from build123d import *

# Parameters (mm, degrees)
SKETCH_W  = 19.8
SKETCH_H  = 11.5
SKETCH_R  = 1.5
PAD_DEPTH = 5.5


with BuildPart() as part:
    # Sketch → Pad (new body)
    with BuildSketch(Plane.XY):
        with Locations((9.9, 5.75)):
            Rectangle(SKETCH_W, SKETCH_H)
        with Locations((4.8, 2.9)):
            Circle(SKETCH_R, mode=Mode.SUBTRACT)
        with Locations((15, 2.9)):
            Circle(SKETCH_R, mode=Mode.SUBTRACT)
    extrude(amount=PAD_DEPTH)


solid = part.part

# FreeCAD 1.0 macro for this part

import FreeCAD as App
import Part
import Sketcher
from FreeCAD import Vector


def add_polygon(sketch, points):
    """Adds a closed chain of lines whose ends are joined by coincident constraints."""
    first, n = sketch.GeometryCount, len(points)
    for a, b in zip(points, points[1:] + points[:1]):
        sketch.addGeometry(Part.LineSegment(App.Vector(*a, 0), App.Vector(*b, 0)), False)
    for i in range(n):
        sketch.addConstraint(Sketcher.Constraint("Coincident", first + i, 2, first + (i + 1) % n, 1))

doc = App.newDocument("Part")
body = doc.addObject("PartDesign::Body", "Body")

sketch1 = doc.addObject("Sketcher::SketchObject", "Sketch")
body.addObject(sketch1)
sketch1.AttachmentSupport = (doc.XY_Plane, [""])
sketch1.MapMode = "FlatFace"
add_polygon(sketch1, [(0, 11.5), (0, 0), (19.8, 0), (19.8, 11.5)])
sketch1.addGeometry(Part.Circle(Vector(4.8, 2.9, 0), Vector(0, 0, 1), 1.5), False)
sketch1.addGeometry(Part.Circle(Vector(15, 2.9, 0), Vector(0, 0, 1), 1.5), False)
sketch1.addConstraint([
    Sketcher.Constraint("Vertical", 0),
    Sketcher.Constraint("Horizontal", 1),
    Sketcher.Constraint("Vertical", 2),
    Sketcher.Constraint("Horizontal", 3),
    Sketcher.Constraint("Coincident", 0, 2, -1, 1),
    Sketcher.Constraint("Equal", 4, 5),
    Sketcher.Constraint("Horizontal", 4, 3, 5, 3),
    Sketcher.Constraint("Diameter", 4, 3.0),
    Sketcher.Constraint("DistanceX", 1, 1, 1, 2, 19.8),
    Sketcher.Constraint("DistanceY", 0, 2, 0, 1, 11.5),
    Sketcher.Constraint("DistanceX", -1, 1, 5, 3, 15.0),
    Sketcher.Constraint("DistanceX", 4, 3, 1, 2, 15.0),
    Sketcher.Constraint("DistanceY", -1, 1, 4, 3, 2.9),
])
pad1 = doc.addObject("PartDesign::Pad", "Pad")
body.addObject(pad1)
pad1.Profile = sketch1
pad1.Length = 5.5

doc.recompute()
